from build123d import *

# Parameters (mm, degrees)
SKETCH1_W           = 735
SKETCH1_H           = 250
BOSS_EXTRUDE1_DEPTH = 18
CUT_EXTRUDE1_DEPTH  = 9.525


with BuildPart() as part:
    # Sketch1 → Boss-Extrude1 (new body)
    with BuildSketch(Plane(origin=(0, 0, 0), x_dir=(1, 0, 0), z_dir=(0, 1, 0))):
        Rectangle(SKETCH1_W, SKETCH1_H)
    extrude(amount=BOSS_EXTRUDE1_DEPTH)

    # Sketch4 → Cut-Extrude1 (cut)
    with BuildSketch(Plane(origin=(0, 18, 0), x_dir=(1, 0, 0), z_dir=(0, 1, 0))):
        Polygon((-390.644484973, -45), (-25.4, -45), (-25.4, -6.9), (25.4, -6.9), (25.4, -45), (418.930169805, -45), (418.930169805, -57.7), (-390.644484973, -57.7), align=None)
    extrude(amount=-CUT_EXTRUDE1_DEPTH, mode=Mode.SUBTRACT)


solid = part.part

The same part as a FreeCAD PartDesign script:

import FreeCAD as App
import Part
import Sketcher
Q = App.Units.Quantity

doc = App.newDocument("Part")
body = doc.addObject("PartDesign::Body", "Body")

sketch1 = body.newObject("Sketcher::SketchObject", "Sketch")
sketch1.AttachmentSupport = (doc.getObject("XZ_Plane"), [""])
sketch1.MapMode = "FlatFace"
sketch1.addGeometry(Part.LineSegment(App.Vector(-367.5, -125, 0), App.Vector(-367.5, 125, 0)), False)
sketch1.addGeometry(Part.LineSegment(App.Vector(-367.5, 125, 0), App.Vector(367.5, 125, 0)), False)
sketch1.addGeometry(Part.LineSegment(App.Vector(367.5, 125, 0), App.Vector(367.5, -125, 0)), False)
sketch1.addGeometry(Part.LineSegment(App.Vector(367.5, -125, 0), App.Vector(-367.5, -125, 0)), False)
sketch1.addConstraint(Sketcher.Constraint("Coincident", 0, 2, 1, 1))
sketch1.addConstraint(Sketcher.Constraint("Coincident", 1, 2, 2, 1))
sketch1.addConstraint(Sketcher.Constraint("Coincident", 2, 2, 3, 1))
sketch1.addConstraint(Sketcher.Constraint("Coincident", 3, 2, 0, 1))
sketch1.addConstraint(Sketcher.Constraint("Vertical", 0))
sketch1.addConstraint(Sketcher.Constraint("Horizontal", 1))
sketch1.addConstraint(Sketcher.Constraint("Vertical", 2))
sketch1.addConstraint(Sketcher.Constraint("Horizontal", 3))
sketch1.addConstraint(Sketcher.Constraint("Symmetric", 0, 2, 2, 2, -1, 1))
sketch1.addConstraint(Sketcher.Constraint("DistanceX", 1, 1, 1, 2, 735.0))
sketch1.addConstraint(Sketcher.Constraint("DistanceY", 0, 1, 0, 2, 250.0))
pad1 = body.newObject("PartDesign::Pad", "Pad")
pad1.Profile = sketch1
pad1.Length = 18
pad1.Reversed = True

sketch2 = body.newObject("Sketcher::SketchObject", "Sketch001")
sketch2.AttachmentSupport = (doc.getObject("XZ_Plane"), [""])
sketch2.MapMode = "FlatFace"
sketch2.AttachmentOffset = App.Placement(App.Vector(0, 0, -18), App.Rotation())
sketch2.addGeometry(Part.LineSegment(App.Vector(-25.4, 45, 0), App.Vector(-390.644485, 45, 0)), False)
sketch2.addGeometry(Part.LineSegment(App.Vector(-390.644485, 45, 0), App.Vector(-390.644485, 57.7, 0)), False)
sketch2.addGeometry(Part.LineSegment(App.Vector(-390.644485, 57.7, 0), App.Vector(418.93017, 57.7, 0)), False)
sketch2.addGeometry(Part.LineSegment(App.Vector(418.93017, 57.7, 0), App.Vector(418.93017, 45, 0)), False)
sketch2.addGeometry(Part.LineSegment(App.Vector(418.93017, 45, 0), App.Vector(25.4, 45, 0)), False)
sketch2.addGeometry(Part.LineSegment(App.Vector(25.4, 45, 0), App.Vector(25.4, 6.9, 0)), False)
sketch2.addGeometry(Part.LineSegment(App.Vector(25.4, 6.9, 0), App.Vector(-25.4, 6.9, 0)), False)
sketch2.addGeometry(Part.LineSegment(App.Vector(-25.4, 6.9, 0), App.Vector(-25.4, 45, 0)), False)
sketch2.addConstraint(Sketcher.Constraint("Coincident", 0, 2, 1, 1))
sketch2.addConstraint(Sketcher.Constraint("Coincident", 1, 2, 2, 1))
sketch2.addConstraint(Sketcher.Constraint("Coincident", 2, 2, 3, 1))
sketch2.addConstraint(Sketcher.Constraint("Coincident", 3, 2, 4, 1))
sketch2.addConstraint(Sketcher.Constraint("Coincident", 4, 2, 5, 1))
sketch2.addConstraint(Sketcher.Constraint("Coincident", 5, 2, 6, 1))
sketch2.addConstraint(Sketcher.Constraint("Coincident", 6, 2, 7, 1))
sketch2.addConstraint(Sketcher.Constraint("Coincident", 7, 2, 0, 1))
sketch2.addConstraint(Sketcher.Constraint("Horizontal", 0))
sketch2.addConstraint(Sketcher.Constraint("Vertical", 1))
sketch2.addConstraint(Sketcher.Constraint("Horizontal", 2))
sketch2.addConstraint(Sketcher.Constraint("Vertical", 3))
sketch2.addConstraint(Sketcher.Constraint("Horizontal", 4))
sketch2.addConstraint(Sketcher.Constraint("Vertical", 5))
sketch2.addConstraint(Sketcher.Constraint("Horizontal", 6))
sketch2.addConstraint(Sketcher.Constraint("Vertical", 7))
sketch2.addConstraint(Sketcher.Constraint("Symmetric", 4, 2, 7, 2, -2))
sketch2.addConstraint(Sketcher.Constraint("DistanceX", 6, 2, 6, 1, Q("2 in")))
sketch2.addConstraint(Sketcher.Constraint("DistanceY", 1, 1, 1, 2, Q("0.5 in")))
sketch2.addConstraint(Sketcher.Constraint("DistanceY", 5, 2, 5, 1, Q("1.5 in")))
sketch2.addConstraint(Sketcher.Constraint("DistanceX", 4, 2, 4, 1, 393.53017))
sketch2.addConstraint(Sketcher.Constraint("DistanceY", -1, 1, 0, 2, 45.0))
sketch2.addConstraint(Sketcher.Constraint("DistanceX", 0, 2, 0, 1, 365.244485))
pocket1 = body.newObject("PartDesign::Pocket", "Pocket")
pocket1.Profile = sketch2
pocket1.Length = Q("0.375 in")
pocket1.Reversed = True

doc.recompute()
